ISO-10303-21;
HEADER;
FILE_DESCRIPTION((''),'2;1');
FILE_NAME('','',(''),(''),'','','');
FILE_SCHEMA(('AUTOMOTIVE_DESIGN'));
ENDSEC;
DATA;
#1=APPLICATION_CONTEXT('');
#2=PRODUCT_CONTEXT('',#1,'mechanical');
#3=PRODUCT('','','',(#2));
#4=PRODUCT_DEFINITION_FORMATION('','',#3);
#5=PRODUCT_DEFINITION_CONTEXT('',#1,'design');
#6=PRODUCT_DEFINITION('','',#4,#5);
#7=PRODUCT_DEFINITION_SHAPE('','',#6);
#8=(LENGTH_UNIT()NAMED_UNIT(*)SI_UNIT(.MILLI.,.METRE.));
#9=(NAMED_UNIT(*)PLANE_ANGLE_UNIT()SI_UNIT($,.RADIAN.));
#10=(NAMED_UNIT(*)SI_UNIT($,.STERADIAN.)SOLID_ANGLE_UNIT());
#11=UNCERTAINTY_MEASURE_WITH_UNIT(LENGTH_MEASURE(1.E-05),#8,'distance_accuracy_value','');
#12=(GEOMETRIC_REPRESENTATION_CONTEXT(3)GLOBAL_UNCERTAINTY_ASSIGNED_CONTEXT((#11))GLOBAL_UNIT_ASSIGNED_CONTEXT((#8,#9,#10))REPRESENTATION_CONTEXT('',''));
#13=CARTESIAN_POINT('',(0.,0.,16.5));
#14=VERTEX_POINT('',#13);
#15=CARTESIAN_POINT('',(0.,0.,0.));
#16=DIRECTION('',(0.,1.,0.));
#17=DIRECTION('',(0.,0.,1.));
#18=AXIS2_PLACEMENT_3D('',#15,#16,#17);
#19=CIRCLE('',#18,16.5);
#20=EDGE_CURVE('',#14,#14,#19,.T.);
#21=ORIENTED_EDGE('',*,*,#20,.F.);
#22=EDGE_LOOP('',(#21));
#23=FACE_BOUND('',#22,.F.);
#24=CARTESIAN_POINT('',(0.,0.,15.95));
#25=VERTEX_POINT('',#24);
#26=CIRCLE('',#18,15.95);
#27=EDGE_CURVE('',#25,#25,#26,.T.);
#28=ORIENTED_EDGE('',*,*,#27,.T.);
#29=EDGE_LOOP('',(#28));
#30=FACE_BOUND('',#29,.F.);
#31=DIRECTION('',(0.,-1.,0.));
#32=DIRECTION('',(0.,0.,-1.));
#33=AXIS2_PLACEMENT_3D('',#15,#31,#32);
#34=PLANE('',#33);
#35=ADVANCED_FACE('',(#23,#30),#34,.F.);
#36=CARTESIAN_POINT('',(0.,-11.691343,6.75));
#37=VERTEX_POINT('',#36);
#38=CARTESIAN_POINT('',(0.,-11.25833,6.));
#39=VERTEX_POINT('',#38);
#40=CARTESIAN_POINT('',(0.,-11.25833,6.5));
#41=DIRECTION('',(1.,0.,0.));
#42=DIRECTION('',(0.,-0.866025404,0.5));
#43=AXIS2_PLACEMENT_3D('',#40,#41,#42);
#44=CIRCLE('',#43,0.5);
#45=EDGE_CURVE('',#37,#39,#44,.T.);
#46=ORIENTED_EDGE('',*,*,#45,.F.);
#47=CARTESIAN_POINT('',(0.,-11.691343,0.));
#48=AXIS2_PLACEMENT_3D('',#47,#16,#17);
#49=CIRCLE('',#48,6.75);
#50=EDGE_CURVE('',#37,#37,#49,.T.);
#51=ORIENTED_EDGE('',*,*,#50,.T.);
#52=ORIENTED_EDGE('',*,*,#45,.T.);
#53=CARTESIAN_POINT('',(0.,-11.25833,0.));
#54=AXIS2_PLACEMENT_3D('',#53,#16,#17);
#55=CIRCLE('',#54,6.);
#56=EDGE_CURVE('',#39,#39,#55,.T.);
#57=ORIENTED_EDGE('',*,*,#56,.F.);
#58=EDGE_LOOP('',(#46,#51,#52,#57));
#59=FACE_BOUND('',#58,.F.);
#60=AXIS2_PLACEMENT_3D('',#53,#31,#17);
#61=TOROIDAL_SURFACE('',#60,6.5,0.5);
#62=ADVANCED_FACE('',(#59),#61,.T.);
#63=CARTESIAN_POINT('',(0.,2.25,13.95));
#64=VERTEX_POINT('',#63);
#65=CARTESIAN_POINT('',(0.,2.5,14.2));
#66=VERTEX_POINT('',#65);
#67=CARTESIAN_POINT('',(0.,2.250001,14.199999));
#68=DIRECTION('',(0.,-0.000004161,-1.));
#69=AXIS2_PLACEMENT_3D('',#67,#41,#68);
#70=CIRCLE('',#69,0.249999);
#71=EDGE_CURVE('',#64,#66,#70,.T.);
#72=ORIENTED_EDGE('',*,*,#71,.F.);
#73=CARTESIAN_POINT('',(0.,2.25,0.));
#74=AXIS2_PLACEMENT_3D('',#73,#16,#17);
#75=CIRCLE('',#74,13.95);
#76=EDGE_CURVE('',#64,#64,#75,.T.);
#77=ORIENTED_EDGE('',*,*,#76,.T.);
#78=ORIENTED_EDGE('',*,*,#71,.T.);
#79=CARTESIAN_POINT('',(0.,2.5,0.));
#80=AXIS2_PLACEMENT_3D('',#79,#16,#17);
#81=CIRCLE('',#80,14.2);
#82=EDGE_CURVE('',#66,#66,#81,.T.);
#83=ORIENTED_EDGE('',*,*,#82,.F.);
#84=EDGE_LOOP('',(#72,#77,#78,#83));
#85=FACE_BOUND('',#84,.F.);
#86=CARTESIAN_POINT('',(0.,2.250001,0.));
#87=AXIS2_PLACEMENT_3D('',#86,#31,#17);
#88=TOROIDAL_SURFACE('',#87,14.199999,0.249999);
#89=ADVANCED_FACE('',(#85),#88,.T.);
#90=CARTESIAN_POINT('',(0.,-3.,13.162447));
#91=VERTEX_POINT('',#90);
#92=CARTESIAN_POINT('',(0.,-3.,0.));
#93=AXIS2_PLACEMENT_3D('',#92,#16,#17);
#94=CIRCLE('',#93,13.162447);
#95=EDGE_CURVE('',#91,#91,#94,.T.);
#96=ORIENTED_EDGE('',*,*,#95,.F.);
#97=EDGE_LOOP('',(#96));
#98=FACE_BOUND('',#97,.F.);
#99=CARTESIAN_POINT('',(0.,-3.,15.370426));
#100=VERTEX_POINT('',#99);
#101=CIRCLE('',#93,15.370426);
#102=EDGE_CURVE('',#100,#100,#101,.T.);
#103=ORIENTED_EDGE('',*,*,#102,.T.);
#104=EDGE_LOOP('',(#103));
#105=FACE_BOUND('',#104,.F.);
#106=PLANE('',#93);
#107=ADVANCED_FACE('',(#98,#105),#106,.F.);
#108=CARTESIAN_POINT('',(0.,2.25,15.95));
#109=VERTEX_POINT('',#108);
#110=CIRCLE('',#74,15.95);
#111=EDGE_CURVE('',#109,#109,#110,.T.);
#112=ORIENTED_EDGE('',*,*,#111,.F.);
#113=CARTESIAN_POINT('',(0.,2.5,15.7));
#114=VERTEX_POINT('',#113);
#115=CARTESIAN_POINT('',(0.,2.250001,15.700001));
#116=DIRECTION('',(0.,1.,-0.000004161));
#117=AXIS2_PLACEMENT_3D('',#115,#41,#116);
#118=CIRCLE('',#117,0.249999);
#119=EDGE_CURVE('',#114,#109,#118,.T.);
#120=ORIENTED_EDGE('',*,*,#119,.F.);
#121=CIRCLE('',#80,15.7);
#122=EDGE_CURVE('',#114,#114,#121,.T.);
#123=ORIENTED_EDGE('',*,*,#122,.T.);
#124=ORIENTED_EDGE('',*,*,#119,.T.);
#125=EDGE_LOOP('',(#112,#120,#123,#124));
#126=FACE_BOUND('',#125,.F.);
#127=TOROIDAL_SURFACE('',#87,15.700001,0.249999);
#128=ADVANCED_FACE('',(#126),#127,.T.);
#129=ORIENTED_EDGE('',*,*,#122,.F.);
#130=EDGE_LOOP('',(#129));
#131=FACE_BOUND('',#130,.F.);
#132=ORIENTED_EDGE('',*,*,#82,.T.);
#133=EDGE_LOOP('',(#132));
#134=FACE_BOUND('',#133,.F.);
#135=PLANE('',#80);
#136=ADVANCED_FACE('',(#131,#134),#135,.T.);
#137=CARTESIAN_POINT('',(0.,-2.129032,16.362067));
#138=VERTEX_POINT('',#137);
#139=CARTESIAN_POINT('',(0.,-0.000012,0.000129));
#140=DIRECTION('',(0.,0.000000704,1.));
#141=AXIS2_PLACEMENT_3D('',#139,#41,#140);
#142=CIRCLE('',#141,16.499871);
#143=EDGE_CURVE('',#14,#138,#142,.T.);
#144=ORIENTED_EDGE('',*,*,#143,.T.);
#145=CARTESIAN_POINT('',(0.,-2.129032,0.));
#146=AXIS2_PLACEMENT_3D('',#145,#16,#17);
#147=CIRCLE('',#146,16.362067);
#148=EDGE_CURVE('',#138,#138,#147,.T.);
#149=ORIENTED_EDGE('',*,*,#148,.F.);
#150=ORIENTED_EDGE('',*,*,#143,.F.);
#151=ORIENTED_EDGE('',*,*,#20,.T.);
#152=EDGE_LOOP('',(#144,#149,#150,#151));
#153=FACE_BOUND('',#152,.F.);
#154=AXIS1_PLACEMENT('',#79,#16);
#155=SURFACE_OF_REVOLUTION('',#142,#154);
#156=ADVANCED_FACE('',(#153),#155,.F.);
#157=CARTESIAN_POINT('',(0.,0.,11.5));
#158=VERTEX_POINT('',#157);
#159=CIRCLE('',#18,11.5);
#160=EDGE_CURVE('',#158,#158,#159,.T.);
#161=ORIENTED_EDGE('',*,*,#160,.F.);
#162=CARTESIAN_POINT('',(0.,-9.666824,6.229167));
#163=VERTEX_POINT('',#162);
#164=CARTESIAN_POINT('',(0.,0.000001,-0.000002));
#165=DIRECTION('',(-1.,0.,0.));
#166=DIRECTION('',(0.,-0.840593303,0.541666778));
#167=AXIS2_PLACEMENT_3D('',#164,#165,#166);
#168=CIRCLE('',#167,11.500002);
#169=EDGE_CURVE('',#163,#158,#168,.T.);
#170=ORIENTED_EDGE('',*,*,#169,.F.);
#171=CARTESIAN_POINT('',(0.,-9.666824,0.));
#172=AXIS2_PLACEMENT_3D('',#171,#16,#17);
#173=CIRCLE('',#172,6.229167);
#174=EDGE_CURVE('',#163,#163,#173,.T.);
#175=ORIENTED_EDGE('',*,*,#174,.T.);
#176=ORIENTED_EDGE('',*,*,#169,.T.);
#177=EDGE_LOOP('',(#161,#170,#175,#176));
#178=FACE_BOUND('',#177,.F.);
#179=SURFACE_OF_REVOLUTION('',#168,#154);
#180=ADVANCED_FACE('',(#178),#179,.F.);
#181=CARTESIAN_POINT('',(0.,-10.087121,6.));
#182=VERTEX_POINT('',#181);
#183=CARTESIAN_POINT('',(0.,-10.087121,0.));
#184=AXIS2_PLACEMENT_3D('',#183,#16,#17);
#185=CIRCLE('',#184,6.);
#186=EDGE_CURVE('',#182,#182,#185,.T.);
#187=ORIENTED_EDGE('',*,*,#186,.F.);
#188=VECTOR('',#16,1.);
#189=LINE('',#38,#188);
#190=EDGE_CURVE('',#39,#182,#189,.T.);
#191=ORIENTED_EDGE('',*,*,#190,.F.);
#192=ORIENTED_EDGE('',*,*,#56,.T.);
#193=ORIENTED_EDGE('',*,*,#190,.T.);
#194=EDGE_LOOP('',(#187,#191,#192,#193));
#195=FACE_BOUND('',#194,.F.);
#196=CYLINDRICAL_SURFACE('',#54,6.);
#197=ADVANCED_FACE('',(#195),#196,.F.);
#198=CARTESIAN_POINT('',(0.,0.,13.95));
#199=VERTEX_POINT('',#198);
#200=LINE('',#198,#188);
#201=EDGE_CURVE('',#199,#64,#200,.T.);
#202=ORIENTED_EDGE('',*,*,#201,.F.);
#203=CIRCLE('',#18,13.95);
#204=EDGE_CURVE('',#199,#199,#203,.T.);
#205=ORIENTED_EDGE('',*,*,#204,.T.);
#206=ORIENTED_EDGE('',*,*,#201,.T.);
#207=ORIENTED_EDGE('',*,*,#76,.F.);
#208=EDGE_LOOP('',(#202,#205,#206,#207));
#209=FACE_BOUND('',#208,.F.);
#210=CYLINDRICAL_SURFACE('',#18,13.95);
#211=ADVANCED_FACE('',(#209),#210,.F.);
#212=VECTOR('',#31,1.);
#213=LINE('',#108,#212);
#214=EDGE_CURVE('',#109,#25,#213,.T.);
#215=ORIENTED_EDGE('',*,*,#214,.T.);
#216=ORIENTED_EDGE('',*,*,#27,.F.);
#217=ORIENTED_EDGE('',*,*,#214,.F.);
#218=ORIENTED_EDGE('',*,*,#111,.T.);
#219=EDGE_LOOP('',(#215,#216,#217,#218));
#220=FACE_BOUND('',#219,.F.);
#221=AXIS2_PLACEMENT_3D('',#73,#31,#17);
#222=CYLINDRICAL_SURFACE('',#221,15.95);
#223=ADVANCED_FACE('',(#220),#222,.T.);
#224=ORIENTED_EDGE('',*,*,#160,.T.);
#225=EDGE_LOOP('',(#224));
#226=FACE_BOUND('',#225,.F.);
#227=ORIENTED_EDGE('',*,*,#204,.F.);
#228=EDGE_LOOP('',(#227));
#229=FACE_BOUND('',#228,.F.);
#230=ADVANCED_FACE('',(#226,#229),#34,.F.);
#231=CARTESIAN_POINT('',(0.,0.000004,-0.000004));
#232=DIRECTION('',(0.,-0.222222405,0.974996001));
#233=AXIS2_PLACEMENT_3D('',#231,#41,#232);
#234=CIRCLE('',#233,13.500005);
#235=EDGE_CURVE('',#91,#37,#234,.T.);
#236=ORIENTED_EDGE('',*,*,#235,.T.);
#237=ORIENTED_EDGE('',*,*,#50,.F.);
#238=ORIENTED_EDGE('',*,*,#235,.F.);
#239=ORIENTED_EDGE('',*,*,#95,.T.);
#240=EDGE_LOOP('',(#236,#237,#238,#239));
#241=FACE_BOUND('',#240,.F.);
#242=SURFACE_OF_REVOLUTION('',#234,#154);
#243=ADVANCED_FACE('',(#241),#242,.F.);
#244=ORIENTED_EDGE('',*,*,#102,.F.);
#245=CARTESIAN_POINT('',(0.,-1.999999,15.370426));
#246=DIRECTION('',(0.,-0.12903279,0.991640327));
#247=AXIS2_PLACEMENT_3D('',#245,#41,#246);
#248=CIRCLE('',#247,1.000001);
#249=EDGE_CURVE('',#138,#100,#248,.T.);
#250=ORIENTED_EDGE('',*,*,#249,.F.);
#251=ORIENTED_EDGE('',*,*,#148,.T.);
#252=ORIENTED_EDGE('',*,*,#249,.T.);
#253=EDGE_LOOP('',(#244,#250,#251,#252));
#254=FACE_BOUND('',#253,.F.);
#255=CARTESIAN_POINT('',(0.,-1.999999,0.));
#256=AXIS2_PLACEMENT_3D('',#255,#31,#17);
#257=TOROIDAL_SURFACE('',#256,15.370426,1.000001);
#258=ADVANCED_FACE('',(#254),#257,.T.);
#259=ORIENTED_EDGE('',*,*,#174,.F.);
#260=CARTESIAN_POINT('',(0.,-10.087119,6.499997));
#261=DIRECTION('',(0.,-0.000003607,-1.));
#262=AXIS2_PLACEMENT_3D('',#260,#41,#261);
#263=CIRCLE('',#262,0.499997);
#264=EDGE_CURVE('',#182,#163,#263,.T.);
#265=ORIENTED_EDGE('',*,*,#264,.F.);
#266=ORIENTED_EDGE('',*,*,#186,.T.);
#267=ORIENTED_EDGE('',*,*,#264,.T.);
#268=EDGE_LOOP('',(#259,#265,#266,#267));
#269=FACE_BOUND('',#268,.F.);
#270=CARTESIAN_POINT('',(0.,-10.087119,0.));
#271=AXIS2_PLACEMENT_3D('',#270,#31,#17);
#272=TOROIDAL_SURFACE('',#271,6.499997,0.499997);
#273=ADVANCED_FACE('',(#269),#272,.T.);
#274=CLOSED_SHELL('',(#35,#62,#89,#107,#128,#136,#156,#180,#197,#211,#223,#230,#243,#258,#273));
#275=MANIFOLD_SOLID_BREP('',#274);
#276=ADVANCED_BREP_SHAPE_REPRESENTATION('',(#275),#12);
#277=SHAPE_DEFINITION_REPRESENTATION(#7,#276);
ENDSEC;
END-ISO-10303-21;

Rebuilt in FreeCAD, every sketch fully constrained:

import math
import FreeCAD as App
import Part
import Sketcher
Q = App.Units.Quantity

doc = App.newDocument("Part")
body = doc.addObject("PartDesign::Body", "Body")

# Sketch on YZ plane
sketch1 = body.newObject("Sketcher::SketchObject", "Sketch")
sketch1.AttachmentSupport = (doc.getObject("YZ_Plane"), [""])
sketch1.MapMode = "FlatFace"
sketch1.addGeometry([
    Part.LineSegment(App.Vector(-3, 15.370426, 0), App.Vector(-3, 13.162447, 0)),  # 0
    Part.ArcOfCircle(Part.Circle(App.Vector(0.000004, -0.000004, 0), App.Vector(0, 0, 1), 13.500005), math.radians(102.839599), math.radians(149.999993)),  # 1
    Part.ArcOfCircle(Part.Circle(App.Vector(-11.25833, 6.5, 0), App.Vector(0, 0, 1), 0.5), math.radians(150), math.radians(270.000034)),  # 2
    Part.LineSegment(App.Vector(-11.25833, 6, 0), App.Vector(-10.087121, 6, 0)),  # 3
    Part.ArcOfCircle(Part.Circle(App.Vector(-10.087119, 6.499997, 0), App.Vector(0, 0, 1), 0.499997), math.radians(-90.000207), math.radians(-32.796927)),  # 4
    Part.ArcOfCircle(Part.Circle(App.Vector(0.000001, -0.000002, 0), App.Vector(0, 0, 1), 11.500002), math.radians(90.000004), math.radians(147.202824)),  # 5
    Part.LineSegment(App.Vector(0, 11.5, 0), App.Vector(0, 13.95, 0)),  # 6
    Part.LineSegment(App.Vector(0, 13.95, 0), App.Vector(2.25, 13.95, 0)),  # 7
    Part.ArcOfCircle(Part.Circle(App.Vector(2.250001, 14.199999, 0), App.Vector(0, 0, 1), 0.249999), math.radians(-90.000238), math.radians(0.000238)),  # 8
    Part.LineSegment(App.Vector(2.5, 14.2, 0), App.Vector(2.5, 15.7, 0)),  # 9
    Part.ArcOfCircle(Part.Circle(App.Vector(2.250001, 15.700001, 0), App.Vector(0, 0, 1), 0.249999), math.radians(-0.000238), math.radians(90.000238)),  # 10
    Part.LineSegment(App.Vector(2.25, 15.95, 0), App.Vector(0, 15.95, 0)),  # 11
    Part.LineSegment(App.Vector(0, 15.95, 0), App.Vector(0, 16.5, 0)),  # 12
    Part.ArcOfCircle(Part.Circle(App.Vector(-0.000012, 0.000129, 0), App.Vector(0, 0, 1), 16.499871), math.radians(89.99996), math.radians(97.413691)),  # 13
    Part.ArcOfCircle(Part.Circle(App.Vector(-1.999999, 15.370426, 0), App.Vector(0, 0, 1), 1.000001), math.radians(97.413705), math.radians(179.999987)),  # 14
], False)
sketch1.addConstraint([
    Sketcher.Constraint("Coincident", 0, 2, 1, 1),
    Sketcher.Constraint("Coincident", 1, 2, 2, 1),
    Sketcher.Constraint("Coincident", 2, 2, 3, 1),
    Sketcher.Constraint("Coincident", 3, 2, 4, 1),
    Sketcher.Constraint("Coincident", 4, 2, 5, 2),
    Sketcher.Constraint("Coincident", 5, 1, 6, 1),
    Sketcher.Constraint("Coincident", 6, 2, 7, 1),
    Sketcher.Constraint("Coincident", 7, 2, 8, 1),
    Sketcher.Constraint("Coincident", 8, 2, 9, 1),
    Sketcher.Constraint("Coincident", 9, 2, 10, 1),
    Sketcher.Constraint("Coincident", 10, 2, 11, 1),
    Sketcher.Constraint("Coincident", 11, 2, 12, 1),
    Sketcher.Constraint("Coincident", 12, 2, 13, 1),
    Sketcher.Constraint("Coincident", 13, 2, 14, 1),
    Sketcher.Constraint("Coincident", 14, 2, 0, 1),
    Sketcher.Constraint("Vertical", 0),
    Sketcher.Constraint("Horizontal", 3),
    Sketcher.Constraint("Vertical", 6),
    Sketcher.Constraint("Horizontal", 7),
    Sketcher.Constraint("Vertical", 9),
    Sketcher.Constraint("Horizontal", 11),
    Sketcher.Constraint("Vertical", 12),
    Sketcher.Constraint("Coincident", 1, 3, -1, 1),
    Sketcher.Constraint("Coincident", 5, 3, -1, 1),
    Sketcher.Constraint("PointOnObject", 5, 1, -2),
    Sketcher.Constraint("PointOnObject", 11, 2, -2),
    Sketcher.Constraint("Radius", 14, Q("1.000001 mm")),
    Sketcher.Constraint("Radius", 2, Q("0.5 mm")),
    Sketcher.Constraint("Radius", 8, Q("0.249999 mm")),
    Sketcher.Constraint("Radius", 10, Q("0.249999 mm")),
    Sketcher.Constraint("DistanceY", 9, 1, 9, 2, Q("1.5 mm")),
    Sketcher.Constraint("DistanceX", 14, 3, -1, 1, Q("1.999999 mm")),
    Sketcher.Constraint("DistanceY", -1, 1, 2, 2, Q("6 mm")),
    Sketcher.Constraint("DistanceY", 7, 2, 10, 2, Q("2 mm")),
    Sketcher.Constraint("DistanceX", 7, 1, 7, 2, Q("2.25 mm")),
    Sketcher.Constraint("DistanceX", 11, 2, 11, 1, Q("2.25 mm")),
    Sketcher.Constraint("DistanceY", 6, 1, 6, 2, Q("2.45 mm")),
    Sketcher.Constraint("DistanceY", 12, 1, 12, 2, Q("0.55 mm")),
    Sketcher.Constraint("DistanceY", -1, 1, 8, 3, Q("14.199999 mm")),
    Sketcher.Constraint("DistanceX", -1, 1, 8, 2, Q("2.5 mm")),
    Sketcher.Constraint("DistanceY", -1, 1, 8, 2, Q("14.2 mm")),
    Sketcher.Constraint("DistanceY", 1, 3, 4, 3, Q("6.500001 mm")),
    Sketcher.Constraint("DistanceY", -1, 1, 1, 2, Q("6.75 mm")),
    Sketcher.Constraint("Radius", 13, Q("16.499871 mm")),
    Sketcher.Constraint("Radius", 1, Q("13.500005 mm")),
    Sketcher.Constraint("DistanceX", 3, 1, 3, 2, Q("1.171209 mm")),
    Sketcher.Constraint("DistanceY", 0, 2, 0, 1, Q("2.207979 mm")),
    Sketcher.Constraint("DistanceX", 2, 2, -1, 1, Q("11.25833 mm")),
    Sketcher.Constraint("DistanceX", 13, 2, -1, 1, Q("2.129032 mm")),
    Sketcher.Constraint("DistanceX", 2, 3, 13, 3, Q("11.258319 mm")),
    Sketcher.Constraint("DistanceY", 4, 2, 4, 3, Q("0.27083 mm")),
])
revolution = body.newObject("PartDesign::Revolution", "Revolution")
revolution.Profile = sketch1
revolution.ReferenceAxis = (sketch1, ["H_Axis"])
revolution.Angle = 360

doc.recompute()
